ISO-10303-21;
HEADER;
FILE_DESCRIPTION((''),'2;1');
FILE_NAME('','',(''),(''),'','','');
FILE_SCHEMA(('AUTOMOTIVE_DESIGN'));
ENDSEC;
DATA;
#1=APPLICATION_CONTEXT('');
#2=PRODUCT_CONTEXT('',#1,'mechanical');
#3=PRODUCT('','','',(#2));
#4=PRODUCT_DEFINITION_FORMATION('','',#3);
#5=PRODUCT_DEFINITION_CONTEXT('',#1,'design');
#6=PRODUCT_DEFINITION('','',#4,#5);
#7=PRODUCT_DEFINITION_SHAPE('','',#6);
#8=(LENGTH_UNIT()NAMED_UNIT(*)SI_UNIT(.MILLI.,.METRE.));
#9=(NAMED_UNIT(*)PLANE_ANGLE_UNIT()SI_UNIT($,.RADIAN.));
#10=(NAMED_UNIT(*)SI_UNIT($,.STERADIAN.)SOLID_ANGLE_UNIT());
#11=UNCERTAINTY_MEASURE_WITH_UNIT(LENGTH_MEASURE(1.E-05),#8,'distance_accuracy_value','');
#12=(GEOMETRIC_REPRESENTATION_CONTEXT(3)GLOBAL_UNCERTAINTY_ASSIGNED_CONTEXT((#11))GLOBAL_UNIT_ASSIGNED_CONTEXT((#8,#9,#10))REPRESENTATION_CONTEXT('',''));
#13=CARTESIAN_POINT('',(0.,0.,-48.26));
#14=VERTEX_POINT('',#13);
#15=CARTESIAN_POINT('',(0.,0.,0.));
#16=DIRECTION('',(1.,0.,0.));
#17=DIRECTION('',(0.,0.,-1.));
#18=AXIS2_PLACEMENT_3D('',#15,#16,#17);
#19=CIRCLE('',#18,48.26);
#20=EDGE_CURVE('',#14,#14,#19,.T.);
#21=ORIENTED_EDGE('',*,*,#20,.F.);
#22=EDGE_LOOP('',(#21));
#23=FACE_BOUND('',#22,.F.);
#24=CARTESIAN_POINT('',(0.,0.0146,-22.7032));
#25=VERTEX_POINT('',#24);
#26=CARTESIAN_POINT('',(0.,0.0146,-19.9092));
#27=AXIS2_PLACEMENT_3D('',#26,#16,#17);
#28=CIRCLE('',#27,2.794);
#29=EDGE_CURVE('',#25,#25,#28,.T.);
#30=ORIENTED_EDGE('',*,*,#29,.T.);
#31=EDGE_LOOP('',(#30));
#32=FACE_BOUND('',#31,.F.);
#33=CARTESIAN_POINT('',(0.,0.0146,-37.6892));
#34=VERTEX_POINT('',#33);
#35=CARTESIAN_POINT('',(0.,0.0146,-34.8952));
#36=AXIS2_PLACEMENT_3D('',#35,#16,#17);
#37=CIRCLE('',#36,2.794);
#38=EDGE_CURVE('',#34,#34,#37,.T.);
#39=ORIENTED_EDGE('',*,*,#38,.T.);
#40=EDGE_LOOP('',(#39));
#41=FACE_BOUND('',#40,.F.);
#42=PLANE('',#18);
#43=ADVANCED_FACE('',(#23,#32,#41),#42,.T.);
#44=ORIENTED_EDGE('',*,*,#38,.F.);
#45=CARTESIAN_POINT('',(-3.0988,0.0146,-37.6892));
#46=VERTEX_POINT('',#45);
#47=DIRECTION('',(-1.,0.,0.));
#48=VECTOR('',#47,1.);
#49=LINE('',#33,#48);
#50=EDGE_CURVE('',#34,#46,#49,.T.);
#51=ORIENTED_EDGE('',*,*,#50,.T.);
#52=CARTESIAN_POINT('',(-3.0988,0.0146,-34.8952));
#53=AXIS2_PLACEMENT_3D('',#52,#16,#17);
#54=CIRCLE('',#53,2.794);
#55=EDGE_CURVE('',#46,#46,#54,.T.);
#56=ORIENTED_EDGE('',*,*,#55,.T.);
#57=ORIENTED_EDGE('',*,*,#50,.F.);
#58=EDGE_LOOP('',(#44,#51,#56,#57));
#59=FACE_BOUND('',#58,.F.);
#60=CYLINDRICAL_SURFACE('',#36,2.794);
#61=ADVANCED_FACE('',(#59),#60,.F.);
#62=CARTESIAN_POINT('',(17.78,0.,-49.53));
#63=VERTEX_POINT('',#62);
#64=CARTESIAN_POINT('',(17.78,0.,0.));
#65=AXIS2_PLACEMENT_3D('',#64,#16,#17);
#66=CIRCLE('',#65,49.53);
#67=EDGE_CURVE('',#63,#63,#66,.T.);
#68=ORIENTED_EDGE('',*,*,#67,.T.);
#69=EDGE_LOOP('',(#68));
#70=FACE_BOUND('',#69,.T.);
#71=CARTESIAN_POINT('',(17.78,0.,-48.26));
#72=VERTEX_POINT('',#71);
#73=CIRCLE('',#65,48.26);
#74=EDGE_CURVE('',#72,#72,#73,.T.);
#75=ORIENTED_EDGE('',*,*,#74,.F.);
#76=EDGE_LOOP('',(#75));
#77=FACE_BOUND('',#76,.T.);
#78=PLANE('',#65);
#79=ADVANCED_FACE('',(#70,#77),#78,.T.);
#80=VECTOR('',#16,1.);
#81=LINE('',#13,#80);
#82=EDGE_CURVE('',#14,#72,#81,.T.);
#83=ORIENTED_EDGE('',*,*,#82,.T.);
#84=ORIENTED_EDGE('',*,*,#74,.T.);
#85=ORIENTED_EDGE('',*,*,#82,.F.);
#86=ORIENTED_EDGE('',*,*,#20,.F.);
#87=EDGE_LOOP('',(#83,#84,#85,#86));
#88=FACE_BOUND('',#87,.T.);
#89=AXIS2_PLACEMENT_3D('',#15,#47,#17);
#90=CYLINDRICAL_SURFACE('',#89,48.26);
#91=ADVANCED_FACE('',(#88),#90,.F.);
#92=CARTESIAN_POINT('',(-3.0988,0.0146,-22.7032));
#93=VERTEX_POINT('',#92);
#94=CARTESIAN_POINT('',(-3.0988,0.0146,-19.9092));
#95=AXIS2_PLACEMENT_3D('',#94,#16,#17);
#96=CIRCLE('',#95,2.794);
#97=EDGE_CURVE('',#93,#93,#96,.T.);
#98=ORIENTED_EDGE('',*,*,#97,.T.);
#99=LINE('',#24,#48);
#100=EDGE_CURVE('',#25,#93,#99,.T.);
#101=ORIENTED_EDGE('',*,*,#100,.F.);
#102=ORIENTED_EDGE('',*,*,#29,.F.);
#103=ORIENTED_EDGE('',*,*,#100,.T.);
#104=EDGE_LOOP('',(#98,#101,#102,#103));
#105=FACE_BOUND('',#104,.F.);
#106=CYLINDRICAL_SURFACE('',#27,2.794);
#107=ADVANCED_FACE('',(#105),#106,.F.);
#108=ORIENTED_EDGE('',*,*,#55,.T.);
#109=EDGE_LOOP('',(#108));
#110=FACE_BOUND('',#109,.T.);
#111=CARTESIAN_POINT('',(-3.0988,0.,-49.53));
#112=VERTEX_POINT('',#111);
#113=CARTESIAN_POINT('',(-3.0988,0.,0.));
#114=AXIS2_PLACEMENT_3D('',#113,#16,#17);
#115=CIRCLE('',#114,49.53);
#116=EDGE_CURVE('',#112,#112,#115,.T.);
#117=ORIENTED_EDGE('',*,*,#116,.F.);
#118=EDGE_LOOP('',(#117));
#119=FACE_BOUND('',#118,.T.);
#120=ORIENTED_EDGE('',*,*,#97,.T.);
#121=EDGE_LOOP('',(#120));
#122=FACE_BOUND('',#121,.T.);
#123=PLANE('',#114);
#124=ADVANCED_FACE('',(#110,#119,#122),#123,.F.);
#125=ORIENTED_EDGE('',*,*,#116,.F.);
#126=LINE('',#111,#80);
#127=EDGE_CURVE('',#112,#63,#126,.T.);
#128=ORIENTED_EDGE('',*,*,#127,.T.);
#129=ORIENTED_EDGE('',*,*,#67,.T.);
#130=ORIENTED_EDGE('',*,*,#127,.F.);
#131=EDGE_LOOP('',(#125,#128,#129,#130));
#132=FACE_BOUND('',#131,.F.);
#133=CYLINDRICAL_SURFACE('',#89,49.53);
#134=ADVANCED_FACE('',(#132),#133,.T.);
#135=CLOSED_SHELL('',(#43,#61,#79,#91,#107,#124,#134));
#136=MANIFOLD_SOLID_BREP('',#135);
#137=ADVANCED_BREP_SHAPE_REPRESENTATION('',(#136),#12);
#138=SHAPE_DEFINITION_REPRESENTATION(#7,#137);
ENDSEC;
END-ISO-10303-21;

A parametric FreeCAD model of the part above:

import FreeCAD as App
import Part
import Sketcher
from FreeCAD import Vector
Q = App.Units.Quantity

doc = App.newDocument("Part")
body = doc.addObject("PartDesign::Body", "Body")

# Sketch on XZ plane
sketch1 = body.newObject("Sketcher::SketchObject", "Sketch")
sketch1.AttachmentSupport = (doc.getObject("XZ_Plane"), [""])
sketch1.MapMode = "FlatFace"
sketch1.addGeometry([
    Part.LineSegment(Vector(-3.1, 0, 0), Vector(0, 0, 0)),
    Part.LineSegment(Vector(0, 0, 0), Vector(0, -49.5, 0)),
    Part.LineSegment(Vector(0, -49.5, 0), Vector(-3.1, -49.5, 0)),
    Part.LineSegment(Vector(-3.1, -49.5, 0), Vector(-3.1, 0, 0)),
], False)
sketch1.addConstraint([
    Sketcher.Constraint("Coincident", 0, 2, 1, 1),
    Sketcher.Constraint("Coincident", 1, 2, 2, 1),
    Sketcher.Constraint("Coincident", 2, 2, 3, 1),
    Sketcher.Constraint("Coincident", 3, 2, 0, 1),
    Sketcher.Constraint("Horizontal", 0),
    Sketcher.Constraint("Vertical", 1),
    Sketcher.Constraint("Horizontal", 2),
    Sketcher.Constraint("Vertical", 3),
    Sketcher.Constraint("Coincident", 0, 2, -1, 1),
    Sketcher.Constraint("DistanceY", 1, 2, 1, 1, Q("1.95 in")),
    Sketcher.Constraint("DistanceX", 0, 1, 0, 2, Q("0.122 in")),
])
revolution = body.newObject("PartDesign::Revolution", "Revolution")
revolution.Profile = sketch1
revolution.ReferenceAxis = (sketch1, ["H_Axis"])
revolution.Angle = 360

# Sketch on YZ plane
sketch2 = body.newObject("Sketcher::SketchObject", "Sketch001")
sketch2.AttachmentSupport = (doc.getObject("YZ_Plane"), [""])
sketch2.MapMode = "FlatFace"
sketch2.addGeometry([
    Part.Circle(Vector(0, 0, 0), Vector(0, 0, 1), 50),
    Part.Circle(Vector(0, 0, 0), Vector(0, 0, 1), 48),
], False)
sketch2.addConstraint([
    Sketcher.Constraint("Coincident", 0, 3, -1, 1),
    Sketcher.Constraint("Coincident", 1, 3, -1, 1),
    Sketcher.Constraint("Diameter", 0, Q("3.9 in")),
    Sketcher.Constraint("Diameter", 1, Q("3.8 in")),
])
pad1 = body.newObject("PartDesign::Pad", "Pad")
pad1.Profile = sketch2
pad1.Length = Q("0.7 in")

# Sketch on YZ plane
sketch3 = body.newObject("Sketcher::SketchObject", "Sketch002")
sketch3.AttachmentSupport = (doc.getObject("YZ_Plane"), [""])
sketch3.MapMode = "FlatFace"
sketch3.addGeometry([
    Part.Circle(Vector(0, -34.9, 0), Vector(0, 0, 1), 2.8),
    Part.Circle(Vector(0, -19.9, 0), Vector(0, 0, 1), 2.8),
], False)
sketch3.addConstraint([
    Sketcher.Constraint("Equal", 0, 1),
    Sketcher.Constraint("Vertical", 0, 3, 1, 3),
    Sketcher.Constraint("Diameter", 0, Q("0.22 in")),
    Sketcher.Constraint("DistanceY", 0, 3, 1, 3, Q("0.59 in")),
    Sketcher.Constraint("DistanceX", -1, 1, 0, 3, 0.0146),
    Sketcher.Constraint("DistanceY", 0, 3, -1, 1, 34.8952),
])
pocket1 = body.newObject("PartDesign::Pocket", "Pocket")
pocket1.Profile = sketch3
pocket1.Length = Q("1 in")

doc.recompute()
